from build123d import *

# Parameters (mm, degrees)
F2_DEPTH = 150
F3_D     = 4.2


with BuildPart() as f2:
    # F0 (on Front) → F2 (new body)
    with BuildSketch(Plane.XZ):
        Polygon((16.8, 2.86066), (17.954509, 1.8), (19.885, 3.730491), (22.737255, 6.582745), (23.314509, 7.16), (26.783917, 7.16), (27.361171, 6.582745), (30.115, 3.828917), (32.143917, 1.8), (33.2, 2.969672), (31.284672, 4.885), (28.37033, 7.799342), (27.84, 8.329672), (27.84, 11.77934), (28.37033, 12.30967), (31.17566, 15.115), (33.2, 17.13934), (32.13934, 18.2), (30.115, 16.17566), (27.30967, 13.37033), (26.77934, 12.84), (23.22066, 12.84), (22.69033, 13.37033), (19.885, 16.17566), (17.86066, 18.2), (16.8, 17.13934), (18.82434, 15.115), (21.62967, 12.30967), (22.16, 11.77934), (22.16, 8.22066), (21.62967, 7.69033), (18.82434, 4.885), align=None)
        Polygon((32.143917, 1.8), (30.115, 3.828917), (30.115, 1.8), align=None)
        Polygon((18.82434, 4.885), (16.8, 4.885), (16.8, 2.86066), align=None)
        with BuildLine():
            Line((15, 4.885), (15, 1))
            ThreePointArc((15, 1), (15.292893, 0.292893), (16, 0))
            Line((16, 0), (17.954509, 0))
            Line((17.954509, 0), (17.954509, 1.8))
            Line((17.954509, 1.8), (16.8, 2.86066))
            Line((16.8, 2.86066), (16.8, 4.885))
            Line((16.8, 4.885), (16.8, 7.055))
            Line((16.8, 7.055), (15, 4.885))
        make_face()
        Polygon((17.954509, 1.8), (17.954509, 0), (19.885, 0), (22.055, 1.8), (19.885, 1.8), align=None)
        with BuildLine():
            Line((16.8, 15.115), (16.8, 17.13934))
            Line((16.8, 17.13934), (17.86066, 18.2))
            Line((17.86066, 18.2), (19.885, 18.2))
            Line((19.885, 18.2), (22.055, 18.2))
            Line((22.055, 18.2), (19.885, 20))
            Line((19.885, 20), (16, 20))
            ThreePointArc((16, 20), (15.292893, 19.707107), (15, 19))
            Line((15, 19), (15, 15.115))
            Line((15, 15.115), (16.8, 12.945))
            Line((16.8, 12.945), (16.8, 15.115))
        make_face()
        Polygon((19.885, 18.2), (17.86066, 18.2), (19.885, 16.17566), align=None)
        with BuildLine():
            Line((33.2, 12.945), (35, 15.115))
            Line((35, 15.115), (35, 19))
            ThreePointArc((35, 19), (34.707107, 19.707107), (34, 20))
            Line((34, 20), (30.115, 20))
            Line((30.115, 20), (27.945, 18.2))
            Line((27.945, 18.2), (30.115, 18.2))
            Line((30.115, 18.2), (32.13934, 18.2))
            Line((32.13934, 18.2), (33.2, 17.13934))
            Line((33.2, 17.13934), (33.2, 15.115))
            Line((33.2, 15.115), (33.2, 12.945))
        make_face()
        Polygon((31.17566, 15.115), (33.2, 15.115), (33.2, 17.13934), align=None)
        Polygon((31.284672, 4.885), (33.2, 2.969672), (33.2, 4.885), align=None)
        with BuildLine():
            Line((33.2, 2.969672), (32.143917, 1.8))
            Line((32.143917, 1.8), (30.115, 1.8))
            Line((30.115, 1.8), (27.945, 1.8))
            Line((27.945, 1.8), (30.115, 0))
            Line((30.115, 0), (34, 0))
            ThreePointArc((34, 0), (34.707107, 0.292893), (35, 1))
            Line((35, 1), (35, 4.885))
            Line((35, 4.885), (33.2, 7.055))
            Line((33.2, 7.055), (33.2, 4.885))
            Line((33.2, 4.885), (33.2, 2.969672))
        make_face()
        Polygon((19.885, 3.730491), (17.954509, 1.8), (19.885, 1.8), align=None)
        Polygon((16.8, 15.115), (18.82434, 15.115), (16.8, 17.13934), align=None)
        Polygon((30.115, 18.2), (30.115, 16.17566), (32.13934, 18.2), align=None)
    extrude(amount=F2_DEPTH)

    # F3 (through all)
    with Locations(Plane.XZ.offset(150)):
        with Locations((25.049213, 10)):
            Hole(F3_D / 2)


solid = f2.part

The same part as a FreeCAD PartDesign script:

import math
import FreeCAD as App
import Part
import Sketcher
from FreeCAD import Vector
Q = App.Units.Quantity

doc = App.newDocument("Part")
body = doc.addObject("PartDesign::Body", "Body")

# Sketch on XZ plane
sketch1 = body.newObject("Sketcher::SketchObject", "Sketch")
sketch1.AttachmentSupport = (doc.getObject("XZ_Plane"), [""])
sketch1.MapMode = "FlatFace"
sketch1.addGeometry([
    Part.LineSegment(Vector(19.885, 3.730491, 0), Vector(22.737255, 6.582745, 0)),  # 0
    Part.LineSegment(Vector(22.737255, 6.582745, 0), Vector(23.314509, 7.16, 0)),  # 1
    Part.LineSegment(Vector(23.314509, 7.16, 0), Vector(26.783917, 7.16, 0)),  # 2
    Part.LineSegment(Vector(26.783917, 7.16, 0), Vector(27.361171, 6.582745, 0)),  # 3
    Part.LineSegment(Vector(27.361171, 6.582745, 0), Vector(30.115, 3.828917, 0)),  # 4
    Part.LineSegment(Vector(30.115, 3.828917, 0), Vector(30.115, 1.8, 0)),  # 5
    Part.LineSegment(Vector(30.115, 1.8, 0), Vector(27.945, 1.8, 0)),  # 6
    Part.LineSegment(Vector(27.945, 1.8, 0), Vector(30.115, 0, 0)),  # 7
    Part.LineSegment(Vector(30.115, 0, 0), Vector(34, 0, 0)),  # 8
    Part.ArcOfCircle(Part.Circle(Vector(34.000001, 0.999999, 0), Vector(0, 0, 1), 0.999999), math.radians(-90.000043), math.radians(0.000043)),  # 9
    Part.LineSegment(Vector(35, 1, 0), Vector(35, 4.885, 0)),  # 10
    Part.LineSegment(Vector(35, 4.885, 0), Vector(33.2, 7.055, 0)),  # 11
    Part.LineSegment(Vector(33.2, 7.055, 0), Vector(33.2, 4.885, 0)),  # 12
    Part.LineSegment(Vector(33.2, 4.885, 0), Vector(31.284672, 4.885, 0)),  # 13
    Part.LineSegment(Vector(31.284672, 4.885, 0), Vector(27.84, 8.329672, 0)),  # 14
    Part.LineSegment(Vector(27.84, 8.329672, 0), Vector(27.84, 11.77934, 0)),  # 15
    Part.LineSegment(Vector(27.84, 11.77934, 0), Vector(31.17566, 15.115, 0)),  # 16
    Part.LineSegment(Vector(31.17566, 15.115, 0), Vector(33.2, 15.115, 0)),  # 17
    Part.LineSegment(Vector(33.2, 15.115, 0), Vector(33.2, 12.945, 0)),  # 18
    Part.LineSegment(Vector(33.2, 12.945, 0), Vector(35, 15.115, 0)),  # 19
    Part.LineSegment(Vector(35, 15.115, 0), Vector(35, 19, 0)),  # 20
    Part.ArcOfCircle(Part.Circle(Vector(34.000001, 19.000001, 0), Vector(0, 0, 1), 0.999999), math.radians(-0.000043), math.radians(90.000043)),  # 21
    Part.LineSegment(Vector(34, 20, 0), Vector(30.115, 20, 0)),  # 22
    Part.LineSegment(Vector(30.115, 20, 0), Vector(27.945, 18.2, 0)),  # 23
    Part.LineSegment(Vector(27.945, 18.2, 0), Vector(30.115, 18.2, 0)),  # 24
    Part.LineSegment(Vector(30.115, 18.2, 0), Vector(30.115, 16.17566, 0)),  # 25
    Part.LineSegment(Vector(30.115, 16.17566, 0), Vector(26.77934, 12.84, 0)),  # 26
    Part.LineSegment(Vector(26.77934, 12.84, 0), Vector(23.22066, 12.84, 0)),  # 27
    Part.LineSegment(Vector(23.22066, 12.84, 0), Vector(19.885, 16.17566, 0)),  # 28
    Part.LineSegment(Vector(19.885, 16.17566, 0), Vector(19.885, 18.2, 0)),  # 29
    Part.LineSegment(Vector(19.885, 18.2, 0), Vector(22.055, 18.2, 0)),  # 30
    Part.LineSegment(Vector(22.055, 18.2, 0), Vector(19.885, 20, 0)),  # 31
    Part.LineSegment(Vector(19.885, 20, 0), Vector(16, 20, 0)),  # 32
    Part.ArcOfCircle(Part.Circle(Vector(15.999999, 19.000001, 0), Vector(0, 0, 1), 0.999999), math.radians(89.999957), math.radians(180.000043)),  # 33
    Part.LineSegment(Vector(15, 19, 0), Vector(15, 15.115, 0)),  # 34
    Part.LineSegment(Vector(15, 15.115, 0), Vector(16.8, 12.945, 0)),  # 35
    Part.LineSegment(Vector(16.8, 12.945, 0), Vector(16.8, 15.115, 0)),  # 36
    Part.LineSegment(Vector(16.8, 15.115, 0), Vector(18.82434, 15.115, 0)),  # 37
    Part.LineSegment(Vector(18.82434, 15.115, 0), Vector(22.16, 11.77934, 0)),  # 38
    Part.LineSegment(Vector(22.16, 11.77934, 0), Vector(22.16, 8.22066, 0)),  # 39
    Part.LineSegment(Vector(22.16, 8.22066, 0), Vector(18.82434, 4.885, 0)),  # 40
    Part.LineSegment(Vector(18.82434, 4.885, 0), Vector(16.8, 4.885, 0)),  # 41
    Part.LineSegment(Vector(16.8, 4.885, 0), Vector(16.8, 7.055, 0)),  # 42
    Part.LineSegment(Vector(16.8, 7.055, 0), Vector(15, 4.885, 0)),  # 43
    Part.LineSegment(Vector(15, 4.885, 0), Vector(15, 1, 0)),  # 44
    Part.ArcOfCircle(Part.Circle(Vector(15.999999, 0.999999, 0), Vector(0, 0, 1), 0.999999), math.radians(179.999957), math.radians(270.000043)),  # 45
    Part.LineSegment(Vector(16, 0, 0), Vector(19.885, 0, 0)),  # 46
    Part.LineSegment(Vector(19.885, 0, 0), Vector(22.055, 1.8, 0)),  # 47
    Part.LineSegment(Vector(22.055, 1.8, 0), Vector(19.885, 1.8, 0)),  # 48
    Part.LineSegment(Vector(19.885, 1.8, 0), Vector(19.885, 3.730491, 0)),  # 49
], False)
sketch1.addConstraint([
    Sketcher.Constraint("Coincident", 0, 2, 1, 1),
    Sketcher.Constraint("Coincident", 1, 2, 2, 1),
    Sketcher.Constraint("Coincident", 2, 2, 3, 1),
    Sketcher.Constraint("Coincident", 3, 2, 4, 1),
    Sketcher.Constraint("Coincident", 4, 2, 5, 1),
    Sketcher.Constraint("Coincident", 5, 2, 6, 1),
    Sketcher.Constraint("Coincident", 6, 2, 7, 1),
    Sketcher.Constraint("Coincident", 7, 2, 8, 1),
    Sketcher.Constraint("Tangent", 8, 2, 9, 1),
    Sketcher.Constraint("Tangent", 9, 2, 10, 1),
    Sketcher.Constraint("Coincident", 10, 2, 11, 1),
    Sketcher.Constraint("Coincident", 11, 2, 12, 1),
    Sketcher.Constraint("Coincident", 12, 2, 13, 1),
    Sketcher.Constraint("Coincident", 13, 2, 14, 1),
    Sketcher.Constraint("Coincident", 14, 2, 15, 1),
    Sketcher.Constraint("Coincident", 15, 2, 16, 1),
    Sketcher.Constraint("Coincident", 16, 2, 17, 1),
    Sketcher.Constraint("Coincident", 17, 2, 18, 1),
    Sketcher.Constraint("Coincident", 18, 2, 19, 1),
    Sketcher.Constraint("Coincident", 19, 2, 20, 1),
    Sketcher.Constraint("Tangent", 20, 2, 21, 1),
    Sketcher.Constraint("Tangent", 21, 2, 22, 1),
    Sketcher.Constraint("Coincident", 22, 2, 23, 1),
    Sketcher.Constraint("Coincident", 23, 2, 24, 1),
    Sketcher.Constraint("Coincident", 24, 2, 25, 1),
    Sketcher.Constraint("Coincident", 25, 2, 26, 1),
    Sketcher.Constraint("Coincident", 26, 2, 27, 1),
    Sketcher.Constraint("Coincident", 27, 2, 28, 1),
    Sketcher.Constraint("Coincident", 28, 2, 29, 1),
    Sketcher.Constraint("Coincident", 29, 2, 30, 1),
    Sketcher.Constraint("Coincident", 30, 2, 31, 1),
    Sketcher.Constraint("Coincident", 31, 2, 32, 1),
    Sketcher.Constraint("Tangent", 32, 2, 33, 1),
    Sketcher.Constraint("Tangent", 33, 2, 34, 1),
    Sketcher.Constraint("Coincident", 34, 2, 35, 1),
    Sketcher.Constraint("Coincident", 35, 2, 36, 1),
    Sketcher.Constraint("Coincident", 36, 2, 37, 1),
    Sketcher.Constraint("Coincident", 37, 2, 38, 1),
    Sketcher.Constraint("Coincident", 38, 2, 39, 1),
    Sketcher.Constraint("Coincident", 39, 2, 40, 1),
    Sketcher.Constraint("Coincident", 40, 2, 41, 1),
    Sketcher.Constraint("Coincident", 41, 2, 42, 1),
    Sketcher.Constraint("Coincident", 42, 2, 43, 1),
    Sketcher.Constraint("Coincident", 43, 2, 44, 1),
    Sketcher.Constraint("Tangent", 44, 2, 45, 1),
    Sketcher.Constraint("Tangent", 45, 2, 46, 1),
    Sketcher.Constraint("Coincident", 46, 2, 47, 1),
    Sketcher.Constraint("Coincident", 47, 2, 48, 1),
    Sketcher.Constraint("Coincident", 48, 2, 49, 1),
    Sketcher.Constraint("Coincident", 49, 2, 0, 1),
    Sketcher.Constraint("Horizontal", 2),
    Sketcher.Constraint("Vertical", 5),
    Sketcher.Constraint("Horizontal", 6),
    Sketcher.Constraint("Horizontal", 8),
    Sketcher.Constraint("Vertical", 10),
    Sketcher.Constraint("Vertical", 12),
    Sketcher.Constraint("Horizontal", 13),
    Sketcher.Constraint("Vertical", 15),
    Sketcher.Constraint("Horizontal", 17),
    Sketcher.Constraint("Vertical", 18),
    Sketcher.Constraint("Vertical", 20),
    Sketcher.Constraint("Horizontal", 22),
    Sketcher.Constraint("Horizontal", 24),
    Sketcher.Constraint("Vertical", 25),
    Sketcher.Constraint("Horizontal", 27),
    Sketcher.Constraint("Vertical", 29),
    Sketcher.Constraint("Horizontal", 30),
    Sketcher.Constraint("Horizontal", 32),
    Sketcher.Constraint("Vertical", 34),
    Sketcher.Constraint("Vertical", 36),
    Sketcher.Constraint("Horizontal", 37),
    Sketcher.Constraint("Vertical", 39),
    Sketcher.Constraint("Horizontal", 41),
    Sketcher.Constraint("Vertical", 42),
    Sketcher.Constraint("Vertical", 44),
    Sketcher.Constraint("Horizontal", 46),
    Sketcher.Constraint("Horizontal", 48),
    Sketcher.Constraint("Vertical", 49),
    Sketcher.Constraint("Equal", 9, 21),
    Sketcher.Constraint("Equal", 21, 33),
    Sketcher.Constraint("Equal", 33, 45),
    Sketcher.Constraint("PointOnObject", 7, 2, -1),
    Sketcher.Constraint("PointOnObject", 45, 2, -1),
    Sketcher.Constraint("Parallel", 0, 1),
    Sketcher.Constraint("Perpendicular", 1, 3),
    Sketcher.Constraint("Parallel", 3, 4),
    Sketcher.Constraint("Parallel", 4, 14),
    Sketcher.Constraint("Perpendicular", 14, 16),
    Sketcher.Constraint("Perpendicular", 7, 19),
    Sketcher.Constraint("Perpendicular", 11, 23),
    Sketcher.Constraint("Parallel", 16, 26),
    Sketcher.Constraint("Perpendicular", 26, 28),
    Sketcher.Constraint("Perpendicular", 19, 31),
    Sketcher.Constraint("Perpendicular", 23, 35),
    Sketcher.Constraint("Parallel", 28, 38),
    Sketcher.Constraint("Perpendicular", 38, 40),
    Sketcher.Constraint("Perpendicular", 31, 43),
    Sketcher.Constraint("Perpendicular", 35, 47),
    Sketcher.Constraint("Horizontal", 21, 3, 33, 3),
    Sketcher.Constraint("Horizontal", 0, 2, 3, 2),
    Sketcher.Constraint("Horizontal", 10, 2, 12, 2),
    Sketcher.Constraint("Horizontal", 17, 2, 19, 2),
    Sketcher.Constraint("Horizontal", 25, 2, 28, 2),
    Sketcher.Constraint("Horizontal", 24, 2, 29, 2),
    Sketcher.Constraint("Horizontal", 19, 2, 34, 2),
    Sketcher.Constraint("Horizontal", 18, 2, 35, 2),
    Sketcher.Constraint("Horizontal", 34, 2, 36, 2),
    Sketcher.Constraint("Horizontal", 15, 2, 38, 2),
    Sketcher.Constraint("Horizontal", 13, 2, 40, 2),
    Sketcher.Constraint("Horizontal", 11, 2, 42, 2),
    Sketcher.Constraint("Horizontal", 41, 2, 43, 2),
    Sketcher.Constraint("Horizontal", 6, 2, 47, 2),
    Sketcher.Constraint("Vertical", 9, 3, 21, 3),
    Sketcher.Constraint("Vertical", 33, 3, 45, 3),
    Sketcher.Constraint("Vertical", 5, 2, 7, 2),
    Sketcher.Constraint("Vertical", 12, 2, 17, 2),
    Sketcher.Constraint("Vertical", 7, 2, 22, 2),
    Sketcher.Constraint("Vertical", 6, 2, 23, 2),
    Sketcher.Constraint("Vertical", 22, 2, 24, 2),
    Sketcher.Constraint("Vertical", 29, 2, 31, 2),
    Sketcher.Constraint("Vertical", 37, 2, 40, 2),
    Sketcher.Constraint("Vertical", 36, 2, 41, 2),
    Sketcher.Constraint("Vertical", 31, 2, 46, 2),
    Sketcher.Constraint("Vertical", 46, 2, 48, 2),
    Sketcher.Constraint("Equal", 22, 32),
    Sketcher.Constraint("Equal", 17, 37),
    Sketcher.Constraint("Equal", 46, 10),
    Sketcher.Constraint("Equal", 48, 12),
    Sketcher.Constraint("Equal", 10, 20),
    Sketcher.Constraint("Equal", 41, 25),
    Sketcher.Constraint("Equal", 27, 39),
    Sketcher.Constraint("Equal", 1, 3),
    Sketcher.Constraint("Equal", 16, 26),
    Sketcher.Constraint("Radius", 9, Q("0.999999 mm")),
    Sketcher.Constraint("DistanceX", -1, 1, 9, 3, Q("34.000001 mm")),
    Sketcher.Constraint("DistanceY", -1, 1, 21, 3, Q("19.000001 mm")),
    Sketcher.Constraint("DistanceX", 6, 2, 6, 1, Q("2.17 mm")),
    Sketcher.Constraint("DistanceY", -1, 1, 5, 2, Q("1.8 mm")),
    Sketcher.Constraint("DistanceX", 8, 1, 8, 2, Q("3.885 mm")),
    Sketcher.Constraint("DistanceY", -1, 1, 1, 2, Q("7.16 mm")),
    Sketcher.Constraint("DistanceX", -1, 1, 14, 2, Q("27.84 mm")),
    Sketcher.Constraint("Distance", 4, Q("3.894502 mm")),
    Sketcher.Constraint("Distance", 14, Q("4.871502 mm")),
    Sketcher.Constraint("DistanceX", 17, 1, 17, 2, Q("2.02434 mm")),
    Sketcher.Constraint("DistanceY", 49, 1, 49, 2, Q("1.930491 mm")),
    Sketcher.Constraint("Distance", 1, Q("0.816361 mm")),
])
pad1 = body.newObject("PartDesign::Pad", "Pad")
pad1.Profile = sketch1
pad1.Length = 150

# Sketch on XZ plane
sketch2 = body.newObject("Sketcher::SketchObject", "Sketch001")
sketch2.AttachmentSupport = (doc.getObject("XZ_Plane"), [""])
sketch2.MapMode = "FlatFace"
sketch2.AttachmentOffset = App.Placement(Vector(0, 0, 150), App.Rotation())
sketch2.addGeometry(Part.Circle(Vector(25.049213, 10, 0), Vector(0, 0, 1), 2.1), False)
sketch2.addConstraint([
    Sketcher.Constraint("Diameter", 0, Q("4.2 mm")),
    Sketcher.Constraint("DistanceY", -1, 1, 0, 3, Q("10 mm")),
    Sketcher.Constraint("DistanceX", -1, 1, 0, 3, Q("25.049213 mm")),
])
doc.recompute()
hole = body.newObject("PartDesign::Hole", "Hole")
hole.Profile = sketch2
hole.ThreadType = "None"
hole.Diameter = 4.2
hole.DepthType = "ThroughAll"

doc.recompute()
